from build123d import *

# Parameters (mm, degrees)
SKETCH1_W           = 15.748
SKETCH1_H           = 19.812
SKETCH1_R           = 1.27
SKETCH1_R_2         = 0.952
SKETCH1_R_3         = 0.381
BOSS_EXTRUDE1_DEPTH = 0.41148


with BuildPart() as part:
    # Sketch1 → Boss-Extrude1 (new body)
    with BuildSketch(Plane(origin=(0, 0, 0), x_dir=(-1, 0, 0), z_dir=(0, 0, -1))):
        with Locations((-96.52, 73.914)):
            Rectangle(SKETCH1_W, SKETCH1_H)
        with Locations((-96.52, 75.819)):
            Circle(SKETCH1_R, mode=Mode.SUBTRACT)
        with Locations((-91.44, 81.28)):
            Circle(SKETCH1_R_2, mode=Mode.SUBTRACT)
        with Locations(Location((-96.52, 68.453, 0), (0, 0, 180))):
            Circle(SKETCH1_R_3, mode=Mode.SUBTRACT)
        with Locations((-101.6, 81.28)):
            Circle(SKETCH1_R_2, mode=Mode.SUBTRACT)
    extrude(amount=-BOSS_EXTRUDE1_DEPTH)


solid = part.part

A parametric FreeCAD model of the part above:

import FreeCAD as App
import Part
import Sketcher
from FreeCAD import Vector
Q = App.Units.Quantity

doc = App.newDocument("Part")
params = doc.addObject("Spreadsheet::Sheet", "Params")
for row, (alias, value) in enumerate([
    ("sketch1_diameter", "0.1 in"),
    ("sketch1_diameter2", "0.03 in"),
    ("sketch1_width", "0.62 in"),
    ("sketch1_height", "0.78 in"),
    ("pad1_length", "0.0162 in"),
], start=1):
    params.set(f"A{row}", alias)
    params.set(f"B{row}", "=" + value)
    params.setAlias(f"B{row}", alias)

body = doc.addObject("PartDesign::Body", "Body")

# Sketch on XY plane
sketch1 = body.newObject("Sketcher::SketchObject", "Sketch")
sketch1.AttachmentSupport = (doc.getObject("XY_Plane"), [""])
sketch1.MapMode = "FlatFace"
sketch1.addGeometry([
    Part.LineSegment(Vector(104.39, 83.82, 0), Vector(104.39, 64.01, 0)),  # 0
    Part.LineSegment(Vector(104.39, 64.01, 0), Vector(88.65, 64.01, 0)),  # 1
    Part.LineSegment(Vector(88.65, 64.01, 0), Vector(88.65, 83.82, 0)),  # 2
    Part.LineSegment(Vector(88.65, 83.82, 0), Vector(104.39, 83.82, 0)),  # 3
    Part.Circle(Vector(96.52, 68.45, 0), Vector(0, 0, 1), 0.38),  # 4
    Part.Circle(Vector(101.6, 81.28, 0), Vector(0, 0, 1), 0.95),  # 5
    Part.Circle(Vector(96.52, 75.82, 0), Vector(0, 0, 1), 1.27),  # 6
    Part.Circle(Vector(91.44, 81.28, 0), Vector(0, 0, 1), 0.95),  # 7
], False)
sketch1.addConstraint([
    Sketcher.Constraint("Coincident", 0, 2, 1, 1),
    Sketcher.Constraint("Coincident", 1, 2, 2, 1),
    Sketcher.Constraint("Coincident", 2, 2, 3, 1),
    Sketcher.Constraint("Coincident", 3, 2, 0, 1),
    Sketcher.Constraint("Vertical", 0),
    Sketcher.Constraint("Horizontal", 1),
    Sketcher.Constraint("Vertical", 2),
    Sketcher.Constraint("Horizontal", 3),
    Sketcher.Constraint("Equal", 5, 7),
    Sketcher.Constraint("Horizontal", 5, 3, 7, 3),
    Sketcher.Constraint("Vertical", 4, 3, 6, 3),
    Sketcher.Constraint("Diameter", 6, Q("0.1 in")),
    Sketcher.Constraint("Diameter", 4, Q("0.03 in")),
    Sketcher.Constraint("DistanceX", -1, 1, 5, 3, Q("4 in")),
    Sketcher.Constraint("DistanceX", 1, 2, 1, 1, Q("0.62 in")),
    Sketcher.Constraint("DistanceY", 0, 2, 0, 1, Q("0.78 in")),
    Sketcher.Constraint("DistanceX", -1, 1, 4, 3, Q("3.8 in")),
    Sketcher.Constraint("DistanceY", -1, 1, 5, 3, Q("3.2 in")),
    Sketcher.Constraint("DistanceX", -1, 1, 7, 3, Q("3.6 in")),
    Sketcher.Constraint("DistanceY", -1, 1, 2, 2, Q("3.3 in")),
    Sketcher.Constraint("Diameter", 5, 1.904),
    Sketcher.Constraint("DistanceX", -1, 1, 0, 2, Q("4.11 in")),
    Sketcher.Constraint("DistanceY", 4, 3, 6, 3, Q("0.29 in")),
    Sketcher.Constraint("DistanceY", -1, 1, 4, 3, Q("2.695 in")),
])
sketch1.setExpression("Constraints[11]", "Params.sketch1_diameter")
sketch1.setExpression("Constraints[12]", "Params.sketch1_diameter2")
sketch1.setExpression("Constraints[14]", "Params.sketch1_width")
sketch1.setExpression("Constraints[15]", "Params.sketch1_height")
pad1 = body.newObject("PartDesign::Pad", "Pad")
pad1.Profile = sketch1
pad1.setExpression("Length", "Params.pad1_length")

doc.recompute()
